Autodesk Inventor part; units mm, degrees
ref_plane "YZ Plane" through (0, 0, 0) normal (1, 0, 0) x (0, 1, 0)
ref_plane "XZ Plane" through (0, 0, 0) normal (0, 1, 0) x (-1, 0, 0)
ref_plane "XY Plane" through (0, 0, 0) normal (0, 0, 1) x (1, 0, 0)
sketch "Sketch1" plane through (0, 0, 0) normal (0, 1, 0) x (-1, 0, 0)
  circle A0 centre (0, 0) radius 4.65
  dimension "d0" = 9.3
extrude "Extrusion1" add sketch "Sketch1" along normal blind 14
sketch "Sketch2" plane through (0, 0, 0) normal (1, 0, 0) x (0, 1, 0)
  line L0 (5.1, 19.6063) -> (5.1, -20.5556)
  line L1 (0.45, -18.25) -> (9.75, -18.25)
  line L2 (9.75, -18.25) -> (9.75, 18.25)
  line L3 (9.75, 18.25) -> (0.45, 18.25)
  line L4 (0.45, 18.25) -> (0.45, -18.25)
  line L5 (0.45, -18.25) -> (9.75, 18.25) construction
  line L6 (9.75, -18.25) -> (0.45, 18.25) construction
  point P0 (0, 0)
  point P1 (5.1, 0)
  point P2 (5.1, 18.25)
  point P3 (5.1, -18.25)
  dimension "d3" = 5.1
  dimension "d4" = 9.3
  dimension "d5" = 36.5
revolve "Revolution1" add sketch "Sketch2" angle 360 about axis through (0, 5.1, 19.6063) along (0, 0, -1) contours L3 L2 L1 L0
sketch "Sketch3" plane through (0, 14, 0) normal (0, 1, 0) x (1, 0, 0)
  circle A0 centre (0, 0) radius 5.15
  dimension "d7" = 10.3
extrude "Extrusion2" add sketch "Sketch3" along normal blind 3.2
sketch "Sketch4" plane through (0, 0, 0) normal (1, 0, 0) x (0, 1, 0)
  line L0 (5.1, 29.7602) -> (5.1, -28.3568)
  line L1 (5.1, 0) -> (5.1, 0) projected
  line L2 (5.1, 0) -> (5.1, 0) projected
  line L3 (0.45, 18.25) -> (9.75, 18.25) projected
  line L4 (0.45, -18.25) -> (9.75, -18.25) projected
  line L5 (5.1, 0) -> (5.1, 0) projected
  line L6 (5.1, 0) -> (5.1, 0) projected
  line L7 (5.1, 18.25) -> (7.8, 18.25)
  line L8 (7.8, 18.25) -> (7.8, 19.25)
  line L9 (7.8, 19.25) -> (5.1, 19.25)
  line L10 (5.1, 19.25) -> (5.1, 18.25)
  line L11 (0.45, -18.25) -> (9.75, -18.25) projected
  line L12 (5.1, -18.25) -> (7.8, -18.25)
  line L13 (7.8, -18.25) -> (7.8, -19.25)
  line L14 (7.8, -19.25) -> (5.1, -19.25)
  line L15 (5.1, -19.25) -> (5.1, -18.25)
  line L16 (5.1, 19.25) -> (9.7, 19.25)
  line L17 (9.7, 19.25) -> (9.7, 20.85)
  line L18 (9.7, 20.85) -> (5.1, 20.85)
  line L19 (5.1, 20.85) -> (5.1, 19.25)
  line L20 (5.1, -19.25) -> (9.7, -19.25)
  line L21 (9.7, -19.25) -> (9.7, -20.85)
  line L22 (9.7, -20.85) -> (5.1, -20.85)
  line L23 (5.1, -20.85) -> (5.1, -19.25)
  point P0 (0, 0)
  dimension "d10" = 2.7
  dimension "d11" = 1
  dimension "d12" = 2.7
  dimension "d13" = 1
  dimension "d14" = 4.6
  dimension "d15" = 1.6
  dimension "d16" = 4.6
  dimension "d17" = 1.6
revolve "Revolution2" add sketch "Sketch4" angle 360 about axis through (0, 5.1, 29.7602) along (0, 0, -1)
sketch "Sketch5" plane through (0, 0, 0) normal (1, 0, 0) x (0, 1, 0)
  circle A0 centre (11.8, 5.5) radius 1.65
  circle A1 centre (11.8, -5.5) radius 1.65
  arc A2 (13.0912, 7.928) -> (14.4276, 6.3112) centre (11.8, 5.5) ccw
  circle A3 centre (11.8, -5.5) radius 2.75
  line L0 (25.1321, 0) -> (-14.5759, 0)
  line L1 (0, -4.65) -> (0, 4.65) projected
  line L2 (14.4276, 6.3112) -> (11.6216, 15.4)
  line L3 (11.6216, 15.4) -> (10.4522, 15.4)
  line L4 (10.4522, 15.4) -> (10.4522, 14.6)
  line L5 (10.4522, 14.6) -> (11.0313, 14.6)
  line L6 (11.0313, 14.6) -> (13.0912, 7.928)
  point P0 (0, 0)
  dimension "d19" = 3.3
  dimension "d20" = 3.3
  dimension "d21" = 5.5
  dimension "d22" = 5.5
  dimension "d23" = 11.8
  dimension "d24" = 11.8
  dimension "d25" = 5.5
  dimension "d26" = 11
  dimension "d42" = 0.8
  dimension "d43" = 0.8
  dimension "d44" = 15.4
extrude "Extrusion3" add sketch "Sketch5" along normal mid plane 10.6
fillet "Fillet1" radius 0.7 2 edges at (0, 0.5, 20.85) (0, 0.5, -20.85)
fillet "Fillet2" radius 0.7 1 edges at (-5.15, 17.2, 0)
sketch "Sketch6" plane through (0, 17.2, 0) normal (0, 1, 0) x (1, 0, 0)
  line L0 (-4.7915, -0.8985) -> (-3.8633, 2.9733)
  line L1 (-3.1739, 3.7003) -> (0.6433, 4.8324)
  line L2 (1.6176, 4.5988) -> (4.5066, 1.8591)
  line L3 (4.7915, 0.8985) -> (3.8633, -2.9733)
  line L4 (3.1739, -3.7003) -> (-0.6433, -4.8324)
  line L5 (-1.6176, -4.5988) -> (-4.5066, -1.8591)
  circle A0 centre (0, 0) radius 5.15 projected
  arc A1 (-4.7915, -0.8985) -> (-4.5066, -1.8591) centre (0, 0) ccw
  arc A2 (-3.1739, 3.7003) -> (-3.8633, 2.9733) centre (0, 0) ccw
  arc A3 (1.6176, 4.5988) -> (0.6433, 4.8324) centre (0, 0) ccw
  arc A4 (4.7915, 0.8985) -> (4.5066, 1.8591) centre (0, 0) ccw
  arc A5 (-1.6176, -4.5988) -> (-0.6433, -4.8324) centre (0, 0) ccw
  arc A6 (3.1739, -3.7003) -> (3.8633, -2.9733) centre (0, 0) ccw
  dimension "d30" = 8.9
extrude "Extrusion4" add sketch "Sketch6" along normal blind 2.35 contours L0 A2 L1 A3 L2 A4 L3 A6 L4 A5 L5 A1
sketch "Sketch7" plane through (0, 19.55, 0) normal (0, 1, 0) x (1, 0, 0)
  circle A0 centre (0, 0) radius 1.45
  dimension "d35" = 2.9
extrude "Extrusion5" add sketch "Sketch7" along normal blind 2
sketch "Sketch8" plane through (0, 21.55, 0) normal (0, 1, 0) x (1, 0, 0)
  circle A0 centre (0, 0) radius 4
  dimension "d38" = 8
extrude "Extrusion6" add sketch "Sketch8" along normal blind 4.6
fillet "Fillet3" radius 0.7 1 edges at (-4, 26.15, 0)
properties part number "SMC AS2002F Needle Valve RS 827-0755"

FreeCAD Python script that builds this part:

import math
import FreeCAD as App
import Part
import Sketcher
from FreeCAD import Vector
Q = App.Units.Quantity


def edges_at(feature, points):
    """Names of the edges that pass closest to the given points."""
    edges = feature.Shape.Edges
    near = lambda p: min(range(len(edges)), key=lambda i: edges[i].distToShape(Part.Vertex(*p))[0])
    return sorted({f"Edge{near(p) + 1}" for p in points})

doc = App.newDocument("Part")
body = doc.addObject("PartDesign::Body", "Body")

# Sketch on XZ plane
sketch1 = doc.addObject("Sketcher::SketchObject", "Sketch")
body.addObject(sketch1)
sketch1.AttachmentSupport = (doc.XZ_Plane, [""])
sketch1.MapMode = "FlatFace"
sketch1.addGeometry(Part.Circle(Vector(0, 0, 0), Vector(0, 0, 1), 4.7), False)
sketch1.addConstraint(Sketcher.Constraint("Coincident", 0, 3, -1, 1))
sketch1.addConstraint(Sketcher.Constraint("Diameter", 0, 9.3))
pad1 = doc.addObject("PartDesign::Pad", "Pad")
body.addObject(pad1)
pad1.Profile = sketch1
pad1.Length = 14
pad1.Reversed = True

# Sketch on YZ plane
sketch2 = doc.addObject("Sketcher::SketchObject", "Sketch001")
body.addObject(sketch2)
sketch2.AttachmentSupport = (doc.YZ_Plane, [""])
sketch2.MapMode = "FlatFace"
sketch2.addGeometry(Part.LineSegment(Vector(9.8, 18.2, 0), Vector(5.1, 18.2, 0)), False)
sketch2.addGeometry(Part.LineSegment(Vector(5.1, 18.2, 0), Vector(5.1, -18.2, 0)), False)
sketch2.addGeometry(Part.LineSegment(Vector(5.1, -18.2, 0), Vector(9.8, -18.2, 0)), False)
sketch2.addGeometry(Part.LineSegment(Vector(9.8, -18.2, 0), Vector(9.8, 18.2, 0)), False)
sketch2.addGeometry(Part.LineSegment(Vector(5.1, 18.2, 0), Vector(5.1, -18.2, 0)), True)  # axis
sketch2.addConstraint(Sketcher.Constraint("Coincident", 0, 2, 1, 1))
sketch2.addConstraint(Sketcher.Constraint("Coincident", 1, 2, 2, 1))
sketch2.addConstraint(Sketcher.Constraint("Coincident", 2, 2, 3, 1))
sketch2.addConstraint(Sketcher.Constraint("Coincident", 3, 2, 0, 1))
sketch2.addConstraint(Sketcher.Constraint("Horizontal", 0))
sketch2.addConstraint(Sketcher.Constraint("Vertical", 1))
sketch2.addConstraint(Sketcher.Constraint("Horizontal", 2))
sketch2.addConstraint(Sketcher.Constraint("Vertical", 3))
sketch2.addConstraint(Sketcher.Constraint("Vertical", 4))
sketch2.addConstraint(Sketcher.Constraint("Coincident", 4, 1, 0, 2))
sketch2.addConstraint(Sketcher.Constraint("Horizontal", 2, 2, 4, 2))
sketch2.addConstraint(Sketcher.Constraint("DistanceY", 1, 2, 1, 1, 36.5))
sketch2.addConstraint(Sketcher.Constraint("DistanceX", -1, 1, 0, 2, 5.1))
sketch2.addConstraint(Sketcher.Constraint("DistanceX", 0, 2, 0, 1, 4.65))
sketch2.addConstraint(Sketcher.Constraint("DistanceY", -1, 1, 0, 2, 18.25))
revolution = doc.addObject("PartDesign::Revolution", "Revolution")
body.addObject(revolution)
revolution.Profile = sketch2
revolution.ReferenceAxis = (sketch2, ["Axis0"])
revolution.Angle = 360

# Sketch on XZ plane
sketch3 = doc.addObject("Sketcher::SketchObject", "Sketch002")
body.addObject(sketch3)
sketch3.AttachmentSupport = (doc.XZ_Plane, [""])
sketch3.MapMode = "FlatFace"
sketch3.AttachmentOffset = App.Placement(Vector(0, 0, -14), App.Rotation())
sketch3.addGeometry(Part.Circle(Vector(0, 0, 0), Vector(0, 0, 1), 5), False)
sketch3.addConstraint(Sketcher.Constraint("Coincident", 0, 3, -1, 1))
sketch3.addConstraint(Sketcher.Constraint("Diameter", 0, 10.3))
pad2 = doc.addObject("PartDesign::Pad", "Pad001")
body.addObject(pad2)
pad2.Profile = sketch3
pad2.Length = 3.2
pad2.Reversed = True

# Sketch on YZ plane
sketch4 = doc.addObject("Sketcher::SketchObject", "Sketch003")
body.addObject(sketch4)
sketch4.AttachmentSupport = (doc.YZ_Plane, [""])
sketch4.MapMode = "FlatFace"
sketch4.addGeometry(Part.LineSegment(Vector(9.7, 20.9, 0), Vector(5.1, 20.9, 0)), False)
sketch4.addGeometry(Part.LineSegment(Vector(5.1, 20.9, 0), Vector(5.1, 18.2, 0)), False)
sketch4.addGeometry(Part.LineSegment(Vector(5.1, 18.2, 0), Vector(7.8, 18.2, 0)), False)
sketch4.addGeometry(Part.LineSegment(Vector(7.8, 18.2, 0), Vector(7.8, 19.2, 0)), False)
sketch4.addGeometry(Part.LineSegment(Vector(7.8, 19.2, 0), Vector(9.7, 19.2, 0)), False)
sketch4.addGeometry(Part.LineSegment(Vector(9.7, 19.2, 0), Vector(9.7, 20.9, 0)), False)
sketch4.addGeometry(Part.LineSegment(Vector(7.8, -18.2, 0), Vector(5.1, -18.2, 0)), False)
sketch4.addGeometry(Part.LineSegment(Vector(5.1, -18.2, 0), Vector(5.1, -20.9, 0)), False)
sketch4.addGeometry(Part.LineSegment(Vector(5.1, -20.9, 0), Vector(9.7, -20.9, 0)), False)
sketch4.addGeometry(Part.LineSegment(Vector(9.7, -20.9, 0), Vector(9.7, -19.2, 0)), False)
sketch4.addGeometry(Part.LineSegment(Vector(9.7, -19.2, 0), Vector(7.8, -19.2, 0)), False)
sketch4.addGeometry(Part.LineSegment(Vector(7.8, -19.2, 0), Vector(7.8, -18.2, 0)), False)
sketch4.addGeometry(Part.LineSegment(Vector(5.1, 20.9, 0), Vector(5.1, -20.9, 0)), True)  # axis
sketch4.addConstraint(Sketcher.Constraint("Coincident", 0, 2, 1, 1))
sketch4.addConstraint(Sketcher.Constraint("Coincident", 1, 2, 2, 1))
sketch4.addConstraint(Sketcher.Constraint("Coincident", 2, 2, 3, 1))
sketch4.addConstraint(Sketcher.Constraint("Coincident", 3, 2, 4, 1))
sketch4.addConstraint(Sketcher.Constraint("Coincident", 4, 2, 5, 1))
sketch4.addConstraint(Sketcher.Constraint("Coincident", 5, 2, 0, 1))
sketch4.addConstraint(Sketcher.Constraint("Coincident", 6, 2, 7, 1))
sketch4.addConstraint(Sketcher.Constraint("Coincident", 7, 2, 8, 1))
sketch4.addConstraint(Sketcher.Constraint("Coincident", 8, 2, 9, 1))
sketch4.addConstraint(Sketcher.Constraint("Coincident", 9, 2, 10, 1))
sketch4.addConstraint(Sketcher.Constraint("Coincident", 10, 2, 11, 1))
sketch4.addConstraint(Sketcher.Constraint("Coincident", 11, 2, 6, 1))
sketch4.addConstraint(Sketcher.Constraint("Horizontal", 0))
sketch4.addConstraint(Sketcher.Constraint("Vertical", 1))
sketch4.addConstraint(Sketcher.Constraint("Horizontal", 2))
sketch4.addConstraint(Sketcher.Constraint("Vertical", 3))
sketch4.addConstraint(Sketcher.Constraint("Horizontal", 4))
sketch4.addConstraint(Sketcher.Constraint("Vertical", 5))
sketch4.addConstraint(Sketcher.Constraint("Horizontal", 6))
sketch4.addConstraint(Sketcher.Constraint("Vertical", 7))
sketch4.addConstraint(Sketcher.Constraint("Horizontal", 8))
sketch4.addConstraint(Sketcher.Constraint("Vertical", 9))
sketch4.addConstraint(Sketcher.Constraint("Horizontal", 10))
sketch4.addConstraint(Sketcher.Constraint("Vertical", 11))
sketch4.addConstraint(Sketcher.Constraint("Vertical", 12))
sketch4.addConstraint(Sketcher.Constraint("Coincident", 12, 1, 0, 2))
sketch4.addConstraint(Sketcher.Constraint("Coincident", 12, 2, 7, 2))
sketch4.addConstraint(Sketcher.Constraint("Symmetric", 5, 2, 8, 2, -1))
sketch4.addConstraint(Sketcher.Constraint("Symmetric", 3, 2, 10, 2, -1))
sketch4.addConstraint(Sketcher.Constraint("Equal", 1, 7))
sketch4.addConstraint(Sketcher.Constraint("DistanceY", 3, 1, 3, 2, 1.0))
sketch4.addConstraint(Sketcher.Constraint("DistanceX", 0, 2, 0, 1, 4.6))
sketch4.addConstraint(Sketcher.Constraint("DistanceX", 2, 1, 2, 2, 2.7))
sketch4.addConstraint(Sketcher.Constraint("DistanceY", 5, 1, 5, 2, 1.6))
sketch4.addConstraint(Sketcher.Constraint("DistanceY", 12, 2, 12, 1, 41.7))
sketch4.addConstraint(Sketcher.Constraint("DistanceX", -1, 1, 0, 2, 5.1))
revolution2 = doc.addObject("PartDesign::Revolution", "Revolution001")
body.addObject(revolution2)
revolution2.Profile = sketch4
revolution2.ReferenceAxis = (sketch4, ["Axis0"])
revolution2.Angle = 360

# Sketch on YZ plane
sketch5 = doc.addObject("Sketcher::SketchObject", "Sketch004")
body.addObject(sketch5)
sketch5.AttachmentSupport = (doc.YZ_Plane, [""])
sketch5.MapMode = "FlatFace"
sketch5.addGeometry(Part.LineSegment(Vector(11, 14.6, 0), Vector(13.1, 7.9, 0)), False)
sketch5.addGeometry(Part.ArcOfCircle(Part.Circle(Vector(11.8, 5.5, 0), Vector(0, 0, 1), 2.7), math.radians(62), math.radians(377)), False)
sketch5.addGeometry(Part.LineSegment(Vector(14.4, 6.3, 0), Vector(11.6, 15.4, 0)), False)
sketch5.addGeometry(Part.LineSegment(Vector(11.6, 15.4, 0), Vector(10.5, 15.4, 0)), False)
sketch5.addGeometry(Part.LineSegment(Vector(10.5, 15.4, 0), Vector(10.5, 14.6, 0)), False)
sketch5.addGeometry(Part.LineSegment(Vector(10.5, 14.6, 0), Vector(11, 14.6, 0)), False)
sketch5.addGeometry(Part.Circle(Vector(11.8, 5.5, 0), Vector(0, 0, 1), 1.6), False)
sketch5.addGeometry(Part.Circle(Vector(11.8, -5.5, 0), Vector(0, 0, 1), 2.8), False)
sketch5.addGeometry(Part.Circle(Vector(11.8, -5.5, 0), Vector(0, 0, 1), 1.6), False)
sketch5.addConstraint(Sketcher.Constraint("Coincident", 0, 2, 1, 1))
sketch5.addConstraint(Sketcher.Constraint("Tangent", 1, 2, 2, 1))
sketch5.addConstraint(Sketcher.Constraint("Coincident", 2, 2, 3, 1))
sketch5.addConstraint(Sketcher.Constraint("Coincident", 3, 2, 4, 1))
sketch5.addConstraint(Sketcher.Constraint("Coincident", 4, 2, 5, 1))
sketch5.addConstraint(Sketcher.Constraint("Coincident", 5, 2, 0, 1))
sketch5.addConstraint(Sketcher.Constraint("Horizontal", 3))
sketch5.addConstraint(Sketcher.Constraint("Vertical", 4))
sketch5.addConstraint(Sketcher.Constraint("Horizontal", 5))
sketch5.addConstraint(Sketcher.Constraint("Coincident", 6, 3, 1, 3))
sketch5.addConstraint(Sketcher.Constraint("Coincident", 8, 3, 7, 3))
sketch5.addConstraint(Sketcher.Constraint("Equal", 1, 7))
sketch5.addConstraint(Sketcher.Constraint("Equal", 6, 8))
sketch5.addConstraint(Sketcher.Constraint("Symmetric", 1, 3, 7, 3, -1))
sketch5.addConstraint(Sketcher.Constraint("Parallel", 0, 2))
sketch5.addConstraint(Sketcher.Constraint("Diameter", 6, 3.3))
sketch5.addConstraint(Sketcher.Constraint("Diameter", 7, 5.5))
sketch5.addConstraint(Sketcher.Constraint("DistanceY", 4, 2, 4, 1, 0.8))
sketch5.addConstraint(Sketcher.Constraint("DistanceY", 7, 3, 1, 3, 11.0))
sketch5.addConstraint(Sketcher.Constraint("DistanceX", -1, 1, 1, 3, 11.8))
sketch5.addConstraint(Sketcher.Constraint("DistanceY", -1, 1, 2, 2, 15.4))
sketch5.addConstraint(Sketcher.Constraint("DistanceX", 5, 1, 5, 2, 0.579))
sketch5.addConstraint(Sketcher.Constraint("DistanceX", 5, 2, 0, 2, 2.06))
sketch5.addConstraint(Sketcher.Constraint("DistanceX", 3, 2, 3, 1, 1.1694))
pad3 = doc.addObject("PartDesign::Pad", "Pad002")
body.addObject(pad3)
pad3.Profile = sketch5
pad3.Length = 10.6
pad3.Midplane = True
doc.recompute()

fillet = doc.addObject("PartDesign::Fillet", "Fillet")
body.addObject(fillet)
fillet.Base = (pad3, edges_at(pad3, [(0, 0.5, 20.85), (0, 0.5, -20.85)]))
fillet.Radius = 0.7
doc.recompute()

fillet2 = doc.addObject("PartDesign::Fillet", "Fillet001")
body.addObject(fillet2)
fillet2.Base = (fillet, edges_at(fillet, [(-5.15, 17.2, 0)]))
fillet2.Radius = 0.7

# Sketch on XZ plane
sketch6 = doc.addObject("Sketcher::SketchObject", "Sketch005")
body.addObject(sketch6)
sketch6.AttachmentSupport = (doc.XZ_Plane, [""])
sketch6.MapMode = "FlatFace"
sketch6.AttachmentOffset = App.Placement(Vector(0, 0, -17.2), App.Rotation())
sketch6.addGeometry(Part.LineSegment(Vector(-3.8633, -2.9733, 0), Vector(-4.7915, 0.8985, 0)), False)
sketch6.addGeometry(Part.ArcOfCircle(Part.Circle(Vector(0, 0, 0), Vector(0, 0, 1), 4.874997), math.radians(157.582467), math.radians(169.379262)), False)
sketch6.addGeometry(Part.LineSegment(Vector(-4.5066, 1.8591, 0), Vector(-1.6176, 4.5988, 0)), False)
sketch6.addGeometry(Part.ArcOfCircle(Part.Circle(Vector(0.000915, -0.003104, 0), Vector(0, 0, 1), 4.878229), math.radians(97.588607), math.radians(109.377058)), False)
sketch6.addGeometry(Part.LineSegment(Vector(-0.6433, 4.8324, 0), Vector(3.1739, 3.7003, 0)), False)
sketch6.addGeometry(Part.ArcOfCircle(Part.Circle(Vector(0.001748, 0.001837, 0), Vector(0, 0, 1), 4.872492), math.radians(37.578267), math.radians(49.38048)), False)
sketch6.addGeometry(Part.LineSegment(Vector(3.8633, 2.9733, 0), Vector(4.7915, -0.8985, 0)), False)
sketch6.addGeometry(Part.ArcOfCircle(Part.Circle(Vector(0, 0, 0), Vector(0, 0, 1), 4.874997), math.radians(-22.417533), math.radians(-10.620738)), False)
sketch6.addGeometry(Part.LineSegment(Vector(4.5066, -1.8591, 0), Vector(1.6176, -4.5988, 0)), False)
sketch6.addGeometry(Part.ArcOfCircle(Part.Circle(Vector(-0.000915, 0.003104, 0), Vector(0, 0, 1), 4.878229), math.radians(-82.411393), math.radians(-70.622942)), False)
sketch6.addGeometry(Part.LineSegment(Vector(0.6433, -4.8324, 0), Vector(-3.1739, -3.7003, 0)), False)
sketch6.addGeometry(Part.ArcOfCircle(Part.Circle(Vector(-0.001748, -0.001837, 0), Vector(0, 0, 1), 4.872492), math.radians(-142.421733), math.radians(-130.61952)), False)
sketch6.addConstraint(Sketcher.Constraint("Coincident", 0, 2, 1, 2))
sketch6.addConstraint(Sketcher.Constraint("Coincident", 1, 1, 2, 1))
sketch6.addConstraint(Sketcher.Constraint("Coincident", 2, 2, 3, 2))
sketch6.addConstraint(Sketcher.Constraint("Coincident", 3, 1, 4, 1))
sketch6.addConstraint(Sketcher.Constraint("Coincident", 4, 2, 5, 2))
sketch6.addConstraint(Sketcher.Constraint("Coincident", 5, 1, 6, 1))
sketch6.addConstraint(Sketcher.Constraint("Coincident", 6, 2, 7, 2))
sketch6.addConstraint(Sketcher.Constraint("Coincident", 7, 1, 8, 1))
sketch6.addConstraint(Sketcher.Constraint("Coincident", 8, 2, 9, 2))
sketch6.addConstraint(Sketcher.Constraint("Coincident", 9, 1, 10, 1))
sketch6.addConstraint(Sketcher.Constraint("Coincident", 10, 2, 11, 2))
sketch6.addConstraint(Sketcher.Constraint("Coincident", 11, 1, 0, 1))
sketch6.addConstraint(Sketcher.Constraint("Coincident", 1, 3, -1, 1))
sketch6.addConstraint(Sketcher.Constraint("Coincident", 7, 3, -1, 1))
sketch6.addConstraint(Sketcher.Constraint("Equal", 1, 7))
sketch6.addConstraint(Sketcher.Constraint("Equal", 3, 9))
sketch6.addConstraint(Sketcher.Constraint("Equal", 5, 11))
sketch6.addConstraint(Sketcher.Constraint("Symmetric", 3, 3, 9, 3, -1, 1))
sketch6.addConstraint(Sketcher.Constraint("Symmetric", 5, 3, 11, 3, -1, 1))
sketch6.addConstraint(Sketcher.Constraint("Parallel", 0, 6))
sketch6.addConstraint(Sketcher.Constraint("Parallel", 2, 8))
sketch6.addConstraint(Sketcher.Constraint("Parallel", 4, 10))
sketch6.addConstraint(Sketcher.Constraint("Equal", 0, 2))
sketch6.addConstraint(Sketcher.Constraint("Equal", 2, 4))
sketch6.addConstraint(Sketcher.Constraint("Equal", 4, 6))
sketch6.addConstraint(Sketcher.Constraint("Equal", 6, 8))
sketch6.addConstraint(Sketcher.Constraint("Equal", 8, 10))
sketch6.addConstraint(Sketcher.Constraint("Radius", 1, 4.875))
sketch6.addConstraint(Sketcher.Constraint("Angle", 2, Q("43.4806 deg")))
sketch6.addConstraint(Sketcher.Constraint("Angle", 4, Q("-16.5192 deg")))
sketch6.addConstraint(Sketcher.Constraint("Radius", 3, 4.8782))
sketch6.addConstraint(Sketcher.Constraint("Radius", 5, 4.8725))
sketch6.addConstraint(Sketcher.Constraint("DistanceX", -1, 1, 3, 3, 0.001))
sketch6.addConstraint(Sketcher.Constraint("DistanceY", 3, 3, -1, 1, 0.003))
sketch6.addConstraint(Sketcher.Constraint("DistanceY", -1, 1, 1, 1, 1.859))
sketch6.addConstraint(Sketcher.Constraint("DistanceX", -1, 1, 4, 2, 3.174))
sketch6.addConstraint(Sketcher.Constraint("DistanceY", 3, 3, 5, 3, 0.005))
sketch6.addConstraint(Sketcher.Constraint("DistanceX", 0, 2, 1, 1, 0.285))
pad4 = doc.addObject("PartDesign::Pad", "Pad003")
body.addObject(pad4)
pad4.Profile = sketch6
pad4.Length = 2.35
pad4.Reversed = True

# Sketch on XZ plane
sketch7 = doc.addObject("Sketcher::SketchObject", "Sketch006")
body.addObject(sketch7)
sketch7.AttachmentSupport = (doc.XZ_Plane, [""])
sketch7.MapMode = "FlatFace"
sketch7.AttachmentOffset = App.Placement(Vector(0, 0, -19.55), App.Rotation())
sketch7.addGeometry(Part.Circle(Vector(0, 0, 0), Vector(0, 0, 1), 1.4), False)
sketch7.addConstraint(Sketcher.Constraint("Coincident", 0, 3, -1, 1))
sketch7.addConstraint(Sketcher.Constraint("Diameter", 0, 2.9))
pad5 = doc.addObject("PartDesign::Pad", "Pad004")
body.addObject(pad5)
pad5.Profile = sketch7
pad5.Length = 2
pad5.Reversed = True

# Sketch on XZ plane
sketch8 = doc.addObject("Sketcher::SketchObject", "Sketch007")
body.addObject(sketch8)
sketch8.AttachmentSupport = (doc.XZ_Plane, [""])
sketch8.MapMode = "FlatFace"
sketch8.AttachmentOffset = App.Placement(Vector(0, 0, -21.55), App.Rotation())
sketch8.addGeometry(Part.Circle(Vector(0, 0, 0), Vector(0, 0, 1), 4), False)
sketch8.addConstraint(Sketcher.Constraint("Coincident", 0, 3, -1, 1))
sketch8.addConstraint(Sketcher.Constraint("Diameter", 0, 8.0))
pad6 = doc.addObject("PartDesign::Pad", "Pad005")
body.addObject(pad6)
pad6.Profile = sketch8
pad6.Length = 4.6
pad6.Reversed = True
doc.recompute()

fillet3 = doc.addObject("PartDesign::Fillet", "Fillet002")
body.addObject(fillet3)
fillet3.Base = (pad6, edges_at(pad6, [(-4, 26.15, 0)]))
fillet3.Radius = 0.7

doc.recompute()
